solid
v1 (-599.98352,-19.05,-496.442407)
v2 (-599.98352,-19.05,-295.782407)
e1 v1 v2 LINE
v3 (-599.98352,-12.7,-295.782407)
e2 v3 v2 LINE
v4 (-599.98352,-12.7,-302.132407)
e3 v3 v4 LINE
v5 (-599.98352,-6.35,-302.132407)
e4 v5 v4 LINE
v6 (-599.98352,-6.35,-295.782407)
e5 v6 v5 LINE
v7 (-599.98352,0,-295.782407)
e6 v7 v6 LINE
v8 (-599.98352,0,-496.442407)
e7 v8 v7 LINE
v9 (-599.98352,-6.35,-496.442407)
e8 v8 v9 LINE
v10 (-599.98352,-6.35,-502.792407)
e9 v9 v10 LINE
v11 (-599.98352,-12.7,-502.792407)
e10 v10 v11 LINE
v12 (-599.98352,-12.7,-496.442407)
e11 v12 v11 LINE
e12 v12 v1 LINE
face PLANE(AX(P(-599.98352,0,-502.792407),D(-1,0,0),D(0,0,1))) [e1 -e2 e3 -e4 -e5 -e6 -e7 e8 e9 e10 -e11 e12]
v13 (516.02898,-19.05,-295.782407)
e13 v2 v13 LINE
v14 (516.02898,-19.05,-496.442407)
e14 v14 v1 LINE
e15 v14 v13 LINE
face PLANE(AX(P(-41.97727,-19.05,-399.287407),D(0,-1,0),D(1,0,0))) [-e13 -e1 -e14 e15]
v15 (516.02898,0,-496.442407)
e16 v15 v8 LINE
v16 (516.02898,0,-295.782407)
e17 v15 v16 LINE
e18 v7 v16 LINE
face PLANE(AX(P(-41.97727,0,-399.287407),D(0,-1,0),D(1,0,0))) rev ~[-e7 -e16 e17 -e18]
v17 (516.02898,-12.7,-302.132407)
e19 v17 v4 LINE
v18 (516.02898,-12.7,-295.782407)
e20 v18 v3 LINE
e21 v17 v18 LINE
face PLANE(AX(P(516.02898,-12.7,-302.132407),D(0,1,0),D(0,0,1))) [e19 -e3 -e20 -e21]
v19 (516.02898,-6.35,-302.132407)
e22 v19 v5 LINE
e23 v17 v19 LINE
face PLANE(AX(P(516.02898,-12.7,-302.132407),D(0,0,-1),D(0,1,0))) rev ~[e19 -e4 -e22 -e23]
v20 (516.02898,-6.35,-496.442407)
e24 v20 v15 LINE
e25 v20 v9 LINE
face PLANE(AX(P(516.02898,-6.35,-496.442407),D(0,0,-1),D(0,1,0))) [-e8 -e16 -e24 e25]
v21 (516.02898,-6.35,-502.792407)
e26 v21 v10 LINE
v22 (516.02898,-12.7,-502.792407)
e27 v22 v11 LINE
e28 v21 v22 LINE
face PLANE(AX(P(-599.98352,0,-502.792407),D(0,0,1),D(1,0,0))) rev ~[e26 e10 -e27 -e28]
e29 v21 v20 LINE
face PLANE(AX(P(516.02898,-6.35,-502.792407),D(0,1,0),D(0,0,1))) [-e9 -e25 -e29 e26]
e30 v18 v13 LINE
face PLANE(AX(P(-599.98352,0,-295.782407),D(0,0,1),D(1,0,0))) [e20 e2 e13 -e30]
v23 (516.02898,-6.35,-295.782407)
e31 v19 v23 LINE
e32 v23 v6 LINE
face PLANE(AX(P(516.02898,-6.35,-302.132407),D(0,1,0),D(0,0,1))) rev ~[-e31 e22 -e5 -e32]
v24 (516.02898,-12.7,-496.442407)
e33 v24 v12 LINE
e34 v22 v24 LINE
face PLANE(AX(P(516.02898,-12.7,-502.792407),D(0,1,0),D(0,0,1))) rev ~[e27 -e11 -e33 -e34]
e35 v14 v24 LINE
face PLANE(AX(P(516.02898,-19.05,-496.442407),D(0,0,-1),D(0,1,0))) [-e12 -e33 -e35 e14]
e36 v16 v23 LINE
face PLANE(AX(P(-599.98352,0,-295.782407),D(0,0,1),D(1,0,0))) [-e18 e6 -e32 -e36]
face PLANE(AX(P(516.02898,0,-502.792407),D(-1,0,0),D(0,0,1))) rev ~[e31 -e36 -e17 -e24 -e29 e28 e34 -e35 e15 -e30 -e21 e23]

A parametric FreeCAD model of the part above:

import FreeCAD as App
import Part
import Sketcher

V = App.Vector
Q = App.Units.Quantity


def add_polygon(sketch, points):
    """Adds a closed chain of lines whose ends are joined by coincident constraints."""
    first, n = sketch.GeometryCount, len(points)
    for a, b in zip(points, points[1:] + points[:1]):
        sketch.addGeometry(Part.LineSegment(App.Vector(*a, 0), App.Vector(*b, 0)), False)
    for i in range(n):
        sketch.addConstraint(Sketcher.Constraint("Coincident", first + i, 2, first + (i + 1) % n, 1))

doc = App.newDocument("Part")
body = doc.addObject("PartDesign::Body", "Body")

sketch1 = doc.addObject("Sketcher::SketchObject", "Sketch")
body.addObject(sketch1)
sketch1.AttachmentSupport = (doc.XZ_Plane, [""])
sketch1.MapMode = "FlatFace"
add_polygon(sketch1, [(-600, -296), (-600, -503), (516, -503), (516, -296)])
sketch1.addConstraint([
    Sketcher.Constraint("Vertical", 0),
    Sketcher.Constraint("Horizontal", 1),
    Sketcher.Constraint("Vertical", 2),
    Sketcher.Constraint("Horizontal", 3),
    Sketcher.Constraint("DistanceY", 0, 2, 0, 1, Q("8.15 in")),
    Sketcher.Constraint("DistanceX", 1, 1, 1, 2, Q("43.9375 in")),
    Sketcher.Constraint("DistanceX", 0, 2, -1, 1, Q("599.98352 mm")),
    Sketcher.Constraint("DistanceY", 0, 2, -1, 1, Q("502.792407 mm")),
])
pad1 = doc.addObject("PartDesign::Pad", "Pad")
body.addObject(pad1)
pad1.Profile = sketch1
pad1.Length = Q("0.75 in")

sketch2 = doc.addObject("Sketcher::SketchObject", "Sketch001")
body.addObject(sketch2)
sketch2.AttachmentSupport = (doc.YZ_Plane, [""])
sketch2.MapMode = "FlatFace"
sketch2.AttachmentOffset = App.Placement(V(0, 0, 516.02898), App.Rotation())
add_polygon(sketch2, [(-13, -296), (-13, -302), (-6, -302), (-6, -296)])
sketch2.addConstraint([
    Sketcher.Constraint("Vertical", 0),
    Sketcher.Constraint("Horizontal", 1),
    Sketcher.Constraint("Vertical", 2),
    Sketcher.Constraint("Horizontal", 3),
    Sketcher.Constraint("Equal", 3, 0),
    Sketcher.Constraint("DistanceX", 1, 1, 1, 2, Q("0.25 in")),
    Sketcher.Constraint("DistanceX", 0, 2, -1, 1, Q("0.5 in")),
    Sketcher.Constraint("DistanceY", 0, 2, -1, 1, Q("302.132407 mm")),
])
pocket1 = doc.addObject("PartDesign::Pocket", "Pocket")
body.addObject(pocket1)
pocket1.Profile = sketch2
pocket1.Type = "ThroughAll"

sketch3 = doc.addObject("Sketcher::SketchObject", "Sketch002")
body.addObject(sketch3)
sketch3.AttachmentSupport = (doc.YZ_Plane, [""])
sketch3.MapMode = "FlatFace"
sketch3.AttachmentOffset = App.Placement(V(0, 0, 516.02898), App.Rotation())
add_polygon(sketch3, [(-19, -496), (-19, -503), (-13, -503), (-13, -496)])
add_polygon(sketch3, [(-6, -496), (-6, -503), (0, -503), (0, -496)])
sketch3.addConstraint([
    Sketcher.Constraint("Vertical", 0),
    Sketcher.Constraint("Horizontal", 1),
    Sketcher.Constraint("Vertical", 2),
    Sketcher.Constraint("Horizontal", 3),
    Sketcher.Constraint("Vertical", 4),
    Sketcher.Constraint("Horizontal", 5),
    Sketcher.Constraint("Vertical", 6),
    Sketcher.Constraint("Horizontal", 7),
    Sketcher.Constraint("PointOnObject", 5, 2, -2),
    Sketcher.Constraint("Horizontal", 1, 2, 4, 2),
    Sketcher.Constraint("Horizontal", 3, 2, 6, 2),
    Sketcher.Constraint("Equal", 3, 5),
    Sketcher.Constraint("Equal", 7, 0),
    Sketcher.Constraint("DistanceX", 1, 1, 1, 2, Q("0.25 in")),
    Sketcher.Constraint("DistanceX", 1, 2, -1, 1, Q("0.5 in")),
    Sketcher.Constraint("DistanceY", 0, 2, -1, 1, Q("502.792407 mm")),
])
pocket2 = doc.addObject("PartDesign::Pocket", "Pocket001")
body.addObject(pocket2)
pocket2.Profile = sketch3
pocket2.Type = "ThroughAll"

doc.recompute()
